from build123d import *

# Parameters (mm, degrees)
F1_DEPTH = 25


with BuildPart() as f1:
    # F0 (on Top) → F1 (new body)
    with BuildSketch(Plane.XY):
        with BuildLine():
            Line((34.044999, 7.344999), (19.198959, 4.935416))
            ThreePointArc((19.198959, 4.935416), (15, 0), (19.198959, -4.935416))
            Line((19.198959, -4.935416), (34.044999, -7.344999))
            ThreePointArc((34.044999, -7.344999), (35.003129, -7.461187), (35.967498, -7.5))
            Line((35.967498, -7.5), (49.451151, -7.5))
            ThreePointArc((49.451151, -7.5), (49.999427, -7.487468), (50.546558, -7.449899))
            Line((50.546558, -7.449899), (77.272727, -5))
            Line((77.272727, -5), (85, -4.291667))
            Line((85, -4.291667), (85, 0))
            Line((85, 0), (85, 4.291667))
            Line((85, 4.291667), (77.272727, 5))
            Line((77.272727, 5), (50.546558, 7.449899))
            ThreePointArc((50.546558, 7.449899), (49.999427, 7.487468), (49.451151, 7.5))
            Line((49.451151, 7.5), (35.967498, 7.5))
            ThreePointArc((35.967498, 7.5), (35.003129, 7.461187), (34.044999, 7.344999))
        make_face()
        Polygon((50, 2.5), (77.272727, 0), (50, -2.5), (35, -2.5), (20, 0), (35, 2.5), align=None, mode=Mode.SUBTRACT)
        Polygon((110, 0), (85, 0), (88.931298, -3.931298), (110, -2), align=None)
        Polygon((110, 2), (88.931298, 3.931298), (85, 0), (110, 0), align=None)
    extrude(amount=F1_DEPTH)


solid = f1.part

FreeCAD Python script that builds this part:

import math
import FreeCAD as App
import Part
import Sketcher

V = App.Vector


def add_polygon(sketch, points):
    """Adds a closed chain of lines whose ends are joined by coincident constraints."""
    first, n = sketch.GeometryCount, len(points)
    for a, b in zip(points, points[1:] + points[:1]):
        sketch.addGeometry(Part.LineSegment(App.Vector(*a, 0), App.Vector(*b, 0)), False)
    for i in range(n):
        sketch.addConstraint(Sketcher.Constraint("Coincident", first + i, 2, first + (i + 1) % n, 1))

doc = App.newDocument("Part")
params = doc.addObject("Spreadsheet::Sheet", "Params")
for row, (alias, value) in enumerate([
    ("sketch1_radius", "5 mm"),
    ("sketch1_radius2", "11.999998 mm"),
    ("sketch1_width", "15 mm"),
    ("sketch1_height", "4 mm"),
    ("pad1_length", "25 mm"),
], start=1):
    params.set(f"A{row}", alias)
    params.set(f"B{row}", "=" + value)
    params.setAlias(f"B{row}", alias)

body = doc.addObject("PartDesign::Body", "Body")
body.AllowCompound = True

sketch1 = body.newObject("Sketcher::SketchObject", "Sketch")
sketch1.AttachmentSupport = (doc.getObject("XY_Plane"), [""])
sketch1.MapMode = "FlatFace"
sketch1.addGeometry(Part.LineSegment(V(34.044999, 7.344999, 0), V(19.198959, 4.935416, 0)), False)
sketch1.addGeometry(Part.ArcOfCircle(Part.Circle(V(20, 0, 0), V(0, 0, 1), 5), math.radians(99.218979), math.radians(260.781021)), False)
sketch1.addGeometry(Part.LineSegment(V(19.198959, -4.935416, 0), V(34.044999, -7.344999, 0)), False)
sketch1.addGeometry(Part.ArcOfCircle(Part.Circle(V(35.967497, 4.499998, 0), V(0, 0, 1), 11.999998), math.radians(-99.21898), math.radians(-89.999995)), False)
sketch1.addGeometry(Part.LineSegment(V(35.967498, -7.5, 0), V(49.451151, -7.5, 0)), False)
sketch1.addGeometry(Part.ArcOfCircle(Part.Circle(V(49.451142, 4.500226, 0), V(0, 0, 1), 12.000226), math.radians(-89.999956), math.radians(-84.762581)), False)
sketch1.addGeometry(Part.LineSegment(V(50.546558, -7.449899, 0), V(77.272727, -5, 0)), False)
sketch1.addGeometry(Part.LineSegment(V(77.272727, -5, 0), V(85, -4.291667, 0)), False)
sketch1.addGeometry(Part.LineSegment(V(85, -4.291667, 0), V(85, 0, 0)), False)
sketch1.addGeometry(Part.LineSegment(V(85, 0, 0), V(85, 4.291667, 0)), False)
sketch1.addGeometry(Part.LineSegment(V(85, 4.291667, 0), V(77.272727, 5, 0)), False)
sketch1.addGeometry(Part.LineSegment(V(77.272727, 5, 0), V(50.546558, 7.449899, 0)), False)
sketch1.addGeometry(Part.ArcOfCircle(Part.Circle(V(49.451142, -4.500226, 0), V(0, 0, 1), 12.000226), math.radians(84.762581), math.radians(89.999956)), False)
sketch1.addGeometry(Part.LineSegment(V(49.451151, 7.5, 0), V(35.967498, 7.5, 0)), False)
sketch1.addGeometry(Part.ArcOfCircle(Part.Circle(V(35.967497, -4.499998, 0), V(0, 0, 1), 11.999998), math.radians(89.999995), math.radians(99.21898)), False)
add_polygon(sketch1, [(35, 2.5), (50, 2.5), (77.272727, 0), (50, -2.5), (35, -2.5), (20, 0)])
add_polygon(sketch1, [(85, 0), (88.931298, -3.931298), (110, -2), (110, 2), (88.931298, 3.931298)])
sketch1.addConstraint(Sketcher.Constraint("Tangent", 0, 2, 1, 1))
sketch1.addConstraint(Sketcher.Constraint("Tangent", 1, 2, 2, 1))
sketch1.addConstraint(Sketcher.Constraint("Tangent", 2, 2, 3, 1))
sketch1.addConstraint(Sketcher.Constraint("Tangent", 3, 2, 4, 1))
sketch1.addConstraint(Sketcher.Constraint("Tangent", 4, 2, 5, 1))
sketch1.addConstraint(Sketcher.Constraint("Tangent", 5, 2, 6, 1))
sketch1.addConstraint(Sketcher.Constraint("Coincident", 6, 2, 7, 1))
sketch1.addConstraint(Sketcher.Constraint("Coincident", 7, 2, 8, 1))
sketch1.addConstraint(Sketcher.Constraint("Coincident", 8, 2, 9, 1))
sketch1.addConstraint(Sketcher.Constraint("Coincident", 9, 2, 10, 1))
sketch1.addConstraint(Sketcher.Constraint("Coincident", 10, 2, 11, 1))
sketch1.addConstraint(Sketcher.Constraint("Tangent", 11, 2, 12, 1))
sketch1.addConstraint(Sketcher.Constraint("Tangent", 12, 2, 13, 1))
sketch1.addConstraint(Sketcher.Constraint("Tangent", 13, 2, 14, 1))
sketch1.addConstraint(Sketcher.Constraint("Tangent", 14, 2, 0, 1))
sketch1.addConstraint(Sketcher.Constraint("Horizontal", 4))
sketch1.addConstraint(Sketcher.Constraint("Vertical", 8))
sketch1.addConstraint(Sketcher.Constraint("Vertical", 9))
sketch1.addConstraint(Sketcher.Constraint("Horizontal", 13))
sketch1.addConstraint(Sketcher.Constraint("Horizontal", 15))
sketch1.addConstraint(Sketcher.Constraint("Horizontal", 18))
sketch1.addConstraint(Sketcher.Constraint("Vertical", 23))
sketch1.addConstraint(Sketcher.Constraint("Coincident", 19, 2, 1, 3))
sketch1.addConstraint(Sketcher.Constraint("Coincident", 25, 2, 8, 2))
sketch1.addConstraint(Sketcher.Constraint("Equal", 5, 12))
sketch1.addConstraint(Sketcher.Constraint("Equal", 3, 14))
sketch1.addConstraint(Sketcher.Constraint("Symmetric", 5, 3, 12, 3, -1))
sketch1.addConstraint(Sketcher.Constraint("Symmetric", 0, 2, 1, 2, -1))
sketch1.addConstraint(Sketcher.Constraint("Symmetric", 6, 2, 10, 2, -1))
sketch1.addConstraint(Sketcher.Constraint("Symmetric", 15, 2, 17, 2, -1))
sketch1.addConstraint(Sketcher.Constraint("Symmetric", 21, 2, 24, 2, -1))
sketch1.addConstraint(Sketcher.Constraint("PointOnObject", 8, 2, -1))
sketch1.addConstraint(Sketcher.Constraint("PointOnObject", 16, 2, -1))
sketch1.addConstraint(Sketcher.Constraint("Parallel", 6, 7))
sketch1.addConstraint(Sketcher.Constraint("Parallel", 10, 11))
sketch1.addConstraint(Sketcher.Constraint("Parallel", 11, 16))
sketch1.addConstraint(Sketcher.Constraint("Parallel", 17, 22))
sketch1.addConstraint(Sketcher.Constraint("Parallel", 16, 24))
sketch1.addConstraint(Sketcher.Constraint("Perpendicular", 21, 25))
sketch1.addConstraint(Sketcher.Constraint("Vertical", 10, 2, 16, 2))
sketch1.addConstraint(Sketcher.Constraint("Vertical", 18, 2, 20, 2))
sketch1.addConstraint(Sketcher.Constraint("Radius", 1, 5.0))
sketch1.addConstraint(Sketcher.Constraint("Radius", 3, 11.999998))
sketch1.addConstraint(Sketcher.Constraint("DistanceX", 15, 1, 15, 2, 15.0))
sketch1.addConstraint(Sketcher.Constraint("DistanceY", 23, 1, 23, 2, 4.0))
sketch1.addConstraint(Sketcher.Constraint("DistanceX", -1, 1, 1, 3, 20.0))
sketch1.addConstraint(Sketcher.Constraint("DistanceY", 6, 2, -1, 1, 5.0))
sketch1.addConstraint(Sketcher.Constraint("DistanceX", -1, 1, 7, 2, 85.0))
sketch1.addConstraint(Sketcher.Constraint("DistanceX", -1, 1, 15, 2, 50.0))
sketch1.addConstraint(Sketcher.Constraint("DistanceX", -1, 1, 22, 2, 110.0))
sketch1.addConstraint(Sketcher.Constraint("DistanceY", 3, 2, 14, 3, 3.000002))
sketch1.addConstraint(Sketcher.Constraint("DistanceY", 15, 2, 12, 2, 5.0))
sketch1.addConstraint(Sketcher.Constraint("DistanceX", -1, 1, 2, 2, 34.044999))
sketch1.addConstraint(Sketcher.Constraint("Radius", 5, 12.000226))
sketch1.addConstraint(Sketcher.Constraint("DistanceX", -1, 1, 21, 2, 88.931298))
sketch1.setExpression("Constraints[52]", "Params.sketch1_radius")
sketch1.setExpression("Constraints[53]", "Params.sketch1_radius2")
sketch1.setExpression("Constraints[54]", "Params.sketch1_width")
sketch1.setExpression("Constraints[55]", "Params.sketch1_height")
pad1 = body.newObject("PartDesign::Pad", "Pad")
pad1.Profile = sketch1
pad1.setExpression("Length", "Params.pad1_length")

doc.recompute()
